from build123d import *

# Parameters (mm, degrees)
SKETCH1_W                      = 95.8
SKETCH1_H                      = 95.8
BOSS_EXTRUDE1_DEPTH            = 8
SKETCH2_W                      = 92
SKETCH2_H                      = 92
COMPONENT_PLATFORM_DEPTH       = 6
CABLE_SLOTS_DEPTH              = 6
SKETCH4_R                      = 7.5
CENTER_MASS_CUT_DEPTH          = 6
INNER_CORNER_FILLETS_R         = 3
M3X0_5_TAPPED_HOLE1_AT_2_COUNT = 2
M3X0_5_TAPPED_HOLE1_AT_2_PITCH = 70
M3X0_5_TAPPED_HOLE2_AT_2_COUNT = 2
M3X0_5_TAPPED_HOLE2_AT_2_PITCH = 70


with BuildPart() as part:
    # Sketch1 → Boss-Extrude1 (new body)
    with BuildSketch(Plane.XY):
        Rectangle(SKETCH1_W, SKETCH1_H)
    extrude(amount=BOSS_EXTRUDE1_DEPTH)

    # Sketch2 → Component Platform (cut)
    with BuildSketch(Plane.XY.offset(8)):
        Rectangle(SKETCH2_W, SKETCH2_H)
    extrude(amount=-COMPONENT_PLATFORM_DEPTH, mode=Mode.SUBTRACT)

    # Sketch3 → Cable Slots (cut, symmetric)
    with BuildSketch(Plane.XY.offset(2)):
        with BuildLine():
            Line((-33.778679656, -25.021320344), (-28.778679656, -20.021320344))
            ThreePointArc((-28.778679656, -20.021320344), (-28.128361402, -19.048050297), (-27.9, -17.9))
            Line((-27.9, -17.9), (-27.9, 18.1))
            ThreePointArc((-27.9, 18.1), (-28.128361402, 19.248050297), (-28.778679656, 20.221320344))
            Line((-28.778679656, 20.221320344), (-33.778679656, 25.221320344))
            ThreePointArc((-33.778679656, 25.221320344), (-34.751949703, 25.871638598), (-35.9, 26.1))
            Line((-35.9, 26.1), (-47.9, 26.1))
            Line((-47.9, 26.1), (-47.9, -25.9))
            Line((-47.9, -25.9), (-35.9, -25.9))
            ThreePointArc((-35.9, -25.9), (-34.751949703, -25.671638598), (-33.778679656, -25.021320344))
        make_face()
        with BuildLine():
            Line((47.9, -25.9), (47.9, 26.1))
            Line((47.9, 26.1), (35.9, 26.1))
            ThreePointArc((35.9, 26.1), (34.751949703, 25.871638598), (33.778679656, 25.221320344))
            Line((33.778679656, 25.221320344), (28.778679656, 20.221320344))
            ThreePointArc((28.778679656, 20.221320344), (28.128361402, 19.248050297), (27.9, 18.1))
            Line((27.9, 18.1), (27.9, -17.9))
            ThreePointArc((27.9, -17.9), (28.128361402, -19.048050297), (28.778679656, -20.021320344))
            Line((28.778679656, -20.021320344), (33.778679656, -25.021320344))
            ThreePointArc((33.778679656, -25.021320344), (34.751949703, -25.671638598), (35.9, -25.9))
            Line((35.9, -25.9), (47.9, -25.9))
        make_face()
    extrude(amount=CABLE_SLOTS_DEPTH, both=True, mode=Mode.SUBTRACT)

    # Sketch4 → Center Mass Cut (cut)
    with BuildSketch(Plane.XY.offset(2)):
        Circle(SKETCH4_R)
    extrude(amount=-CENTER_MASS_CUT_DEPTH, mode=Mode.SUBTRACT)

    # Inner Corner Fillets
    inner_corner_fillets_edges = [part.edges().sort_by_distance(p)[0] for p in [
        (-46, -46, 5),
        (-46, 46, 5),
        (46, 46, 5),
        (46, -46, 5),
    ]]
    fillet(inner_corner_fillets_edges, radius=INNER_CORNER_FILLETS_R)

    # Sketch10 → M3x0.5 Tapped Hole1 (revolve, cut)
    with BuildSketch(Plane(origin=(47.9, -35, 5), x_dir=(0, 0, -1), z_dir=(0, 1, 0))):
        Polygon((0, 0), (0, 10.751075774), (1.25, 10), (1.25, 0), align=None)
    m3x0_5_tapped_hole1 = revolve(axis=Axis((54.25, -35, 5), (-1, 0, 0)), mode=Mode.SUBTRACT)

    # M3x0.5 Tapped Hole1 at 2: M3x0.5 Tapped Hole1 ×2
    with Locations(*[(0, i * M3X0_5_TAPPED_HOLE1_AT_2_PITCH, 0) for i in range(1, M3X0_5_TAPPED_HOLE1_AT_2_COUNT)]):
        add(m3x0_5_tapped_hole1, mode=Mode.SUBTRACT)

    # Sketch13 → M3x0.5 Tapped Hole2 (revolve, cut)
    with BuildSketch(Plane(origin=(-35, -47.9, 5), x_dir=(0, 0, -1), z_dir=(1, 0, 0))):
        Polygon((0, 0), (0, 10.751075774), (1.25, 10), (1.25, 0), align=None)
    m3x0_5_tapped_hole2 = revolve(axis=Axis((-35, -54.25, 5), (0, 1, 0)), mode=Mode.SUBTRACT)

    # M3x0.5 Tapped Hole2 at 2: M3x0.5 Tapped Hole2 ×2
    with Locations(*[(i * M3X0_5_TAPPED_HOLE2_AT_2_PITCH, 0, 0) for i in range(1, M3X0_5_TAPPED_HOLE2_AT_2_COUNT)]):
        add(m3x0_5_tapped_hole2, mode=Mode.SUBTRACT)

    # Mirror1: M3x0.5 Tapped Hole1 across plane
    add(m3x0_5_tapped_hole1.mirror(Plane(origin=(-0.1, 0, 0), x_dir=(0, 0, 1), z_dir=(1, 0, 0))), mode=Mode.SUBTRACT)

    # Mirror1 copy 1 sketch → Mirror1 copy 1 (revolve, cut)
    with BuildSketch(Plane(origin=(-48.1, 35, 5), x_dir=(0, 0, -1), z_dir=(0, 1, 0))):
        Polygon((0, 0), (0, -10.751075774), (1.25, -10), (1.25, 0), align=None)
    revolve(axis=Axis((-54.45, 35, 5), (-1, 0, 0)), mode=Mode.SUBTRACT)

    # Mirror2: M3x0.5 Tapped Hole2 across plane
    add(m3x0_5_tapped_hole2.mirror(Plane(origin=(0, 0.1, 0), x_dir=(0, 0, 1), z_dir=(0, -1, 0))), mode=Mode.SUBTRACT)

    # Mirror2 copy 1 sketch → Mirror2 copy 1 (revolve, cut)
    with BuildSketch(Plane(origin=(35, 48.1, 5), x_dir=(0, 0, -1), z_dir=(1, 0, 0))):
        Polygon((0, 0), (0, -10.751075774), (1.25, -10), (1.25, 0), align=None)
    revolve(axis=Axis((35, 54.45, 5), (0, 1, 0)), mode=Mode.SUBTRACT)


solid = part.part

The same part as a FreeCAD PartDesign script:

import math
import FreeCAD as App
import Part
import Sketcher
Q = App.Units.Quantity


def edges_at(feature, points):
    """Names of the edges that pass closest to the given points."""
    edges = feature.Shape.Edges
    near = lambda p: min(range(len(edges)), key=lambda i: edges[i].distToShape(Part.Vertex(*p))[0])
    return sorted({f"Edge{near(p) + 1}" for p in points})


def add_polygon(sketch, points):
    """Adds a closed chain of lines whose ends are joined by coincident constraints."""
    first, n = sketch.GeometryCount, len(points)
    for a, b in zip(points, points[1:] + points[:1]):
        sketch.addGeometry(Part.LineSegment(App.Vector(*a, 0), App.Vector(*b, 0)), False)
    for i in range(n):
        sketch.addConstraint(Sketcher.Constraint("Coincident", first + i, 2, first + (i + 1) % n, 1))

doc = App.newDocument("Part")
body = doc.addObject("PartDesign::Body", "Body")

# Sketch on XY plane
sketch1 = body.newObject("Sketcher::SketchObject", "Sketch")
sketch1.AttachmentSupport = (doc.getObject("XY_Plane"), [""])
sketch1.MapMode = "FlatFace"
add_polygon(sketch1, [(-47.9, 47.9), (-47.9, -47.9), (47.9, -47.9), (47.9, 47.9)])  # lines 0-3
sketch1.addConstraint([
    Sketcher.Constraint("Vertical", 0),
    Sketcher.Constraint("Horizontal", 1),
    Sketcher.Constraint("Vertical", 2),
    Sketcher.Constraint("Horizontal", 3),
    Sketcher.Constraint("Symmetric", 0, 2, 2, 2, -1, 1),
    Sketcher.Constraint("Equal", 3, 0),
    Sketcher.Constraint("DistanceX", 1, 1, 1, 2, 95.8),
])
pad1 = body.newObject("PartDesign::Pad", "Pad")
pad1.Profile = sketch1
pad1.Length = 8

# Sketch on XY plane
sketch2 = body.newObject("Sketcher::SketchObject", "Sketch001")
sketch2.AttachmentSupport = (doc.getObject("XY_Plane"), [""])
sketch2.MapMode = "FlatFace"
sketch2.AttachmentOffset = App.Placement(App.Vector(0, 0, 8), App.Rotation())
add_polygon(sketch2, [(-46, 46), (-46, -46), (46, -46), (46, 46)])  # lines 0-3
sketch2.addConstraint([
    Sketcher.Constraint("Vertical", 0),
    Sketcher.Constraint("Horizontal", 1),
    Sketcher.Constraint("Vertical", 2),
    Sketcher.Constraint("Horizontal", 3),
    Sketcher.Constraint("Symmetric", 0, 2, 2, 2, -1, 1),
    Sketcher.Constraint("Equal", 3, 0),
    Sketcher.Constraint("DistanceX", 1, 1, 1, 2, 92.0),
])
pocket1 = body.newObject("PartDesign::Pocket", "Pocket")
pocket1.Profile = sketch2
pocket1.Length = 6

# Sketch on XY plane
sketch3 = body.newObject("Sketcher::SketchObject", "Sketch002")
sketch3.AttachmentSupport = (doc.getObject("XY_Plane"), [""])
sketch3.MapMode = "FlatFace"
sketch3.AttachmentOffset = App.Placement(App.Vector(0, 0, 2), App.Rotation())
sketch3.addGeometry([
    Part.LineSegment(App.Vector(-33.77868, -25.02132, 0), App.Vector(-28.77868, -20.02132, 0)),  # 0
    Part.ArcOfCircle(Part.Circle(App.Vector(-30.9, -17.9, 0), App.Vector(0, 0, 1), 3), math.radians(-45), math.radians(0)),  # 1
    Part.LineSegment(App.Vector(-27.9, -17.9, 0), App.Vector(-27.9, 18.1, 0)),  # 2
    Part.ArcOfCircle(Part.Circle(App.Vector(-30.9, 18.1, 0), App.Vector(0, 0, 1), 3), math.radians(0), math.radians(45)),  # 3
    Part.LineSegment(App.Vector(-28.77868, 20.22132, 0), App.Vector(-33.77868, 25.22132, 0)),  # 4
    Part.ArcOfCircle(Part.Circle(App.Vector(-35.9, 23.1, 0), App.Vector(0, 0, 1), 3), math.radians(45), math.radians(90)),  # 5
    Part.LineSegment(App.Vector(-35.9, 26.1, 0), App.Vector(-47.9, 26.1, 0)),  # 6
    Part.LineSegment(App.Vector(-47.9, 26.1, 0), App.Vector(-47.9, -25.9, 0)),  # 7
    Part.LineSegment(App.Vector(-47.9, -25.9, 0), App.Vector(-35.9, -25.9, 0)),  # 8
    Part.ArcOfCircle(Part.Circle(App.Vector(-35.9, -22.9, 0), App.Vector(0, 0, 1), 3), math.radians(-90), math.radians(-45)),  # 9
    Part.LineSegment(App.Vector(47.9, -25.9, 0), App.Vector(47.9, 26.1, 0)),  # 10
    Part.LineSegment(App.Vector(47.9, 26.1, 0), App.Vector(35.9, 26.1, 0)),  # 11
    Part.ArcOfCircle(Part.Circle(App.Vector(35.9, 23.1, 0), App.Vector(0, 0, 1), 3), math.radians(90), math.radians(135)),  # 12
    Part.LineSegment(App.Vector(33.77868, 25.22132, 0), App.Vector(28.77868, 20.22132, 0)),  # 13
    Part.ArcOfCircle(Part.Circle(App.Vector(30.9, 18.1, 0), App.Vector(0, 0, 1), 3), math.radians(135), math.radians(180)),  # 14
    Part.LineSegment(App.Vector(27.9, 18.1, 0), App.Vector(27.9, -17.9, 0)),  # 15
    Part.ArcOfCircle(Part.Circle(App.Vector(30.9, -17.9, 0), App.Vector(0, 0, 1), 3), math.radians(180), math.radians(225)),  # 16
    Part.LineSegment(App.Vector(28.77868, -20.02132, 0), App.Vector(33.77868, -25.02132, 0)),  # 17
    Part.ArcOfCircle(Part.Circle(App.Vector(35.9, -22.9, 0), App.Vector(0, 0, 1), 3), math.radians(-135), math.radians(-90)),  # 18
    Part.LineSegment(App.Vector(35.9, -25.9, 0), App.Vector(47.9, -25.9, 0)),  # 19
], False)
sketch3.addConstraint([
    Sketcher.Constraint("Tangent", 0, 2, 1, 1),
    Sketcher.Constraint("Tangent", 1, 2, 2, 1),
    Sketcher.Constraint("Tangent", 2, 2, 3, 1),
    Sketcher.Constraint("Tangent", 3, 2, 4, 1),
    Sketcher.Constraint("Tangent", 4, 2, 5, 1),
    Sketcher.Constraint("Tangent", 5, 2, 6, 1),
    Sketcher.Constraint("Coincident", 6, 2, 7, 1),
    Sketcher.Constraint("Coincident", 7, 2, 8, 1),
    Sketcher.Constraint("Tangent", 8, 2, 9, 1),
    Sketcher.Constraint("Tangent", 9, 2, 0, 1),
    Sketcher.Constraint("Coincident", 10, 2, 11, 1),
    Sketcher.Constraint("Tangent", 11, 2, 12, 1),
    Sketcher.Constraint("Tangent", 12, 2, 13, 1),
    Sketcher.Constraint("Tangent", 13, 2, 14, 1),
    Sketcher.Constraint("Tangent", 14, 2, 15, 1),
    Sketcher.Constraint("Tangent", 15, 2, 16, 1),
    Sketcher.Constraint("Tangent", 16, 2, 17, 1),
    Sketcher.Constraint("Tangent", 17, 2, 18, 1),
    Sketcher.Constraint("Tangent", 18, 2, 19, 1),
    Sketcher.Constraint("Coincident", 19, 2, 10, 1),
    Sketcher.Constraint("Vertical", 2),
    Sketcher.Constraint("Horizontal", 6),
    Sketcher.Constraint("Vertical", 7),
    Sketcher.Constraint("Horizontal", 8),
    Sketcher.Constraint("Vertical", 10),
    Sketcher.Constraint("Horizontal", 11),
    Sketcher.Constraint("Vertical", 15),
    Sketcher.Constraint("Horizontal", 19),
    Sketcher.Constraint("Equal", 1, 3),
    Sketcher.Constraint("Equal", 3, 5),
    Sketcher.Constraint("Equal", 5, 9),
    Sketcher.Constraint("Equal", 9, 12),
    Sketcher.Constraint("Equal", 12, 14),
    Sketcher.Constraint("Equal", 14, 16),
    Sketcher.Constraint("Equal", 16, 18),
    Sketcher.Constraint("Symmetric", 5, 3, 12, 3, -2),
    Sketcher.Constraint("Symmetric", 3, 3, 14, 3, -2),
    Sketcher.Constraint("Symmetric", 9, 3, 18, 3, -2),
    Sketcher.Constraint("Perpendicular", 0, 4),
    Sketcher.Constraint("Perpendicular", 4, 13),
    Sketcher.Constraint("Perpendicular", 13, 17),
    Sketcher.Constraint("Vertical", 5, 3, 9, 3),
    Sketcher.Constraint("Equal", 8, 11),
    Sketcher.Constraint("Radius", 1, 3.0),
    Sketcher.Constraint("DistanceX", 6, 2, 6, 1, 12.0),
    Sketcher.Constraint("DistanceY", 2, 1, 2, 2, 36.0),
    Sketcher.Constraint("DistanceY", 7, 2, 7, 1, 52.0),
    Sketcher.Constraint("DistanceX", 1, 3, -1, 1, 30.9),
    Sketcher.Constraint("DistanceY", 1, 3, -1, 1, 17.9),
])
pocket2 = body.newObject("PartDesign::Pocket", "Pocket001")
pocket2.Profile = sketch3
pocket2.Length = 12
pocket2.Midplane = True

# Sketch on XY plane
sketch4 = body.newObject("Sketcher::SketchObject", "Sketch003")
sketch4.AttachmentSupport = (doc.getObject("XY_Plane"), [""])
sketch4.MapMode = "FlatFace"
sketch4.AttachmentOffset = App.Placement(App.Vector(0, 0, 2), App.Rotation())
sketch4.addGeometry(Part.Circle(App.Vector(0, 0, 0), App.Vector(0, 0, 1), 7.5), False)
sketch4.addConstraint([
    Sketcher.Constraint("Coincident", 0, 3, -1, 1),
    Sketcher.Constraint("Diameter", 0, 15.0),
])
pocket3 = body.newObject("PartDesign::Pocket", "Pocket002")
pocket3.Profile = sketch4
pocket3.Length = 6
doc.recompute()

fillet = body.newObject("PartDesign::Fillet", "Fillet")
fillet.Base = (pocket3, edges_at(pocket3, [
    (-46, -46, 5),
    (-46, 46, 5),
    (46, 46, 5),
    (46, -46, 5),
]))
fillet.Radius = 3

# Sketch on XZ plane
sketch5 = body.newObject("Sketcher::SketchObject", "Sketch004")
sketch5.AttachmentSupport = (doc.getObject("XZ_Plane"), [""])
sketch5.MapMode = "FlatFace"
sketch5.AttachmentOffset = App.Placement(App.Vector(0, 0, 35), App.Rotation())
add_polygon(sketch5, [(37.148924, 5), (47.9, 5), (47.9, 3.75), (37.9, 3.75)])  # lines 0-3
sketch5.addGeometry(Part.LineSegment(App.Vector(47.9, 5, 0), App.Vector(37.148924, 5, 0)), True)  # axis
sketch5.addConstraint([
    Sketcher.Constraint("Horizontal", 0),
    Sketcher.Constraint("Vertical", 1),
    Sketcher.Constraint("Horizontal", 2),
    Sketcher.Constraint("Horizontal", 4),
    Sketcher.Constraint("Coincident", 4, 1, 0, 2),
    Sketcher.Constraint("Equal", 0, 4),
    Sketcher.Constraint("DistanceX", 2, 2, 2, 1, 10.0),
    Sketcher.Constraint("Angle", 3, Q("121 deg")),
    Sketcher.Constraint("DistanceY", -1, 1, 0, 2, 5.0),
    Sketcher.Constraint("DistanceY", 1, 2, 1, 1, 1.25),
    Sketcher.Constraint("DistanceX", -1, 1, 0, 2, 47.9),
])
groove = body.newObject("PartDesign::Groove", "Groove")
groove.Profile = sketch5
groove.ReferenceAxis = (sketch5, ["Axis0"])
groove.Angle = 360
doc.recompute()

linearpattern = body.newObject("PartDesign::LinearPattern", "LinearPattern")
linearpattern.Originals = [groove]
linearpattern.Direction = (doc.getObject("Y_Axis"), [""])
linearpattern.Mode = "offset"
linearpattern.Offset = 70
linearpattern.Occurrences = 2
body.Tip = linearpattern

# Sketch on YZ plane
sketch6 = body.newObject("Sketcher::SketchObject", "Sketch005")
sketch6.AttachmentSupport = (doc.getObject("YZ_Plane"), [""])
sketch6.MapMode = "FlatFace"
sketch6.AttachmentOffset = App.Placement(App.Vector(0, 0, -35), App.Rotation())
add_polygon(sketch6, [(-37.148924, 5), (-47.9, 5), (-47.9, 3.75), (-37.9, 3.75)])  # lines 0-3
sketch6.addGeometry(Part.LineSegment(App.Vector(-47.9, 5, 0), App.Vector(-37.148924, 5, 0)), True)  # axis
sketch6.addConstraint([
    Sketcher.Constraint("Horizontal", 0),
    Sketcher.Constraint("Vertical", 1),
    Sketcher.Constraint("Horizontal", 2),
    Sketcher.Constraint("Horizontal", 4),
    Sketcher.Constraint("Coincident", 4, 1, 0, 2),
    Sketcher.Constraint("Equal", 0, 4),
    Sketcher.Constraint("DistanceX", 2, 1, 2, 2, 10.0),
    Sketcher.Constraint("Angle", 3, Q("59 deg")),
    Sketcher.Constraint("DistanceY", -1, 1, 0, 2, 5.0),
    Sketcher.Constraint("DistanceY", 1, 2, 1, 1, 1.25),
    Sketcher.Constraint("DistanceX", 0, 2, -1, 1, 47.9),
])
groove2 = body.newObject("PartDesign::Groove", "Groove001")
groove2.Profile = sketch6
groove2.ReferenceAxis = (sketch6, ["Axis0"])
groove2.Angle = 360
doc.recompute()

linearpattern2 = body.newObject("PartDesign::LinearPattern", "LinearPattern001")
linearpattern2.Originals = [groove2]
linearpattern2.Direction = (doc.getObject("X_Axis"), [""])
linearpattern2.Mode = "offset"
linearpattern2.Offset = 70
linearpattern2.Occurrences = 2
body.Tip = linearpattern2
doc.recompute()

datumplane = body.newObject("PartDesign::Plane", "DatumPlane")
datumplane.AttachmentSupport = (doc.getObject("YZ_Plane"), [""])
datumplane.MapMode = "FlatFace"
datumplane.AttachmentOffset = App.Placement(App.Vector(0, 0, -0.1), App.Rotation())
mirrored = body.newObject("PartDesign::Mirrored", "Mirrored")
mirrored.Originals = [groove]
mirrored.MirrorPlane = (datumplane, [""])
body.Tip = mirrored

# Sketch on XZ plane
sketch7 = body.newObject("Sketcher::SketchObject", "Sketch006")
sketch7.AttachmentSupport = (doc.getObject("XZ_Plane"), [""])
sketch7.MapMode = "FlatFace"
sketch7.AttachmentOffset = App.Placement(App.Vector(0, 0, -35), App.Rotation())
add_polygon(sketch7, [(-48.1, 5), (-37.348924, 5), (-38.1, 3.75), (-48.1, 3.75)])  # lines 0-3
sketch7.addGeometry(Part.LineSegment(App.Vector(-37.348924, 5, 0), App.Vector(-48.1, 5, 0)), True)  # axis
sketch7.addConstraint([
    Sketcher.Constraint("Horizontal", 0),
    Sketcher.Constraint("Horizontal", 2),
    Sketcher.Constraint("Vertical", 3),
    Sketcher.Constraint("Horizontal", 4),
    Sketcher.Constraint("Coincident", 4, 1, 0, 2),
    Sketcher.Constraint("Vertical", 2, 2, 4, 2),
    Sketcher.Constraint("DistanceX", 2, 2, 2, 1, 10.0),
    Sketcher.Constraint("Angle", 1, Q("-121 deg")),
    Sketcher.Constraint("DistanceY", -1, 1, 0, 2, 5.0),
    Sketcher.Constraint("DistanceY", 3, 1, 3, 2, 1.25),
    Sketcher.Constraint("DistanceX", 1, 2, -1, 1, 38.1),
])
groove3 = body.newObject("PartDesign::Groove", "Groove002")
groove3.Profile = sketch7
groove3.ReferenceAxis = (sketch7, ["Axis0"])
groove3.Angle = 360
doc.recompute()

datumplane2 = body.newObject("PartDesign::Plane", "DatumPlane001")
datumplane2.AttachmentSupport = (doc.getObject("XZ_Plane"), [""])
datumplane2.MapMode = "FlatFace"
datumplane2.AttachmentOffset = App.Placement(App.Vector(0, 0, -0.1), App.Rotation())
mirrored2 = body.newObject("PartDesign::Mirrored", "Mirrored001")
mirrored2.Originals = [groove2]
mirrored2.MirrorPlane = (datumplane2, [""])
body.Tip = mirrored2

# Sketch on YZ plane
sketch8 = body.newObject("Sketcher::SketchObject", "Sketch007")
sketch8.AttachmentSupport = (doc.getObject("YZ_Plane"), [""])
sketch8.MapMode = "FlatFace"
sketch8.AttachmentOffset = App.Placement(App.Vector(0, 0, 35), App.Rotation())
add_polygon(sketch8, [(48.1, 5), (37.348924, 5), (38.1, 3.75), (48.1, 3.75)])  # lines 0-3
sketch8.addGeometry(Part.LineSegment(App.Vector(37.348924, 5, 0), App.Vector(48.1, 5, 0)), True)  # axis
sketch8.addConstraint([
    Sketcher.Constraint("Horizontal", 0),
    Sketcher.Constraint("Horizontal", 2),
    Sketcher.Constraint("Vertical", 3),
    Sketcher.Constraint("Horizontal", 4),
    Sketcher.Constraint("Coincident", 4, 1, 0, 2),
    Sketcher.Constraint("Vertical", 2, 2, 4, 2),
    Sketcher.Constraint("DistanceX", 2, 1, 2, 2, 10.0),
    Sketcher.Constraint("Angle", 1, Q("-59 deg")),
    Sketcher.Constraint("DistanceY", -1, 1, 0, 2, 5.0),
    Sketcher.Constraint("DistanceY", 3, 1, 3, 2, 1.25),
    Sketcher.Constraint("DistanceX", -1, 1, 1, 2, 38.1),
])
groove4 = body.newObject("PartDesign::Groove", "Groove003")
groove4.Profile = sketch8
groove4.ReferenceAxis = (sketch8, ["Axis0"])
groove4.Angle = 360

doc.recompute()
